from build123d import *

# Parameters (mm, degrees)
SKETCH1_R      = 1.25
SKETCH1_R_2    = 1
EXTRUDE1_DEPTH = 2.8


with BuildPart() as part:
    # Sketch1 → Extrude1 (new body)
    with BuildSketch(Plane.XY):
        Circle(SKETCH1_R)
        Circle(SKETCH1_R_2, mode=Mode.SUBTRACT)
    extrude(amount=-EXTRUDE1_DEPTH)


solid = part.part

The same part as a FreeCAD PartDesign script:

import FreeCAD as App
import Part
import Sketcher
Q = App.Units.Quantity

doc = App.newDocument("Part")
params = doc.addObject("Spreadsheet::Sheet", "Params")
for row, (alias, value) in enumerate([
    ("sketch1_diameter", "2 mm"),
    ("sketch1_diameter2", "2.5 mm"),
    ("pad1_length", "2.8 mm"),
], start=1):
    params.set(f"A{row}", alias)
    params.set(f"B{row}", "=" + value)
    params.setAlias(f"B{row}", alias)

body = doc.addObject("PartDesign::Body", "Body")

sketch1 = body.newObject("Sketcher::SketchObject", "Sketch")
sketch1.AttachmentSupport = (doc.getObject("XY_Plane"), [""])
sketch1.MapMode = "FlatFace"
sketch1.addGeometry(Part.Circle(App.Vector(0, 0, 0), App.Vector(0, 0, 1), 1.25), False)
sketch1.addGeometry(Part.Circle(App.Vector(0, 0, 0), App.Vector(0, 0, 1), 1), False)
sketch1.addConstraint(Sketcher.Constraint("Coincident", 0, 3, -1, 1))
sketch1.addConstraint(Sketcher.Constraint("Coincident", 1, 3, -1, 1))
sketch1.addConstraint(Sketcher.Constraint("Diameter", 1, Q("2 mm")))
sketch1.addConstraint(Sketcher.Constraint("Diameter", 0, Q("2.5 mm")))
sketch1.setExpression("Constraints[2]", "Params.sketch1_diameter")
sketch1.setExpression("Constraints[3]", "Params.sketch1_diameter2")
pad1 = body.newObject("PartDesign::Pad", "Pad")
pad1.Profile = sketch1
pad1.setExpression("Length", "Params.pad1_length")
pad1.Reversed = True

doc.recompute()
